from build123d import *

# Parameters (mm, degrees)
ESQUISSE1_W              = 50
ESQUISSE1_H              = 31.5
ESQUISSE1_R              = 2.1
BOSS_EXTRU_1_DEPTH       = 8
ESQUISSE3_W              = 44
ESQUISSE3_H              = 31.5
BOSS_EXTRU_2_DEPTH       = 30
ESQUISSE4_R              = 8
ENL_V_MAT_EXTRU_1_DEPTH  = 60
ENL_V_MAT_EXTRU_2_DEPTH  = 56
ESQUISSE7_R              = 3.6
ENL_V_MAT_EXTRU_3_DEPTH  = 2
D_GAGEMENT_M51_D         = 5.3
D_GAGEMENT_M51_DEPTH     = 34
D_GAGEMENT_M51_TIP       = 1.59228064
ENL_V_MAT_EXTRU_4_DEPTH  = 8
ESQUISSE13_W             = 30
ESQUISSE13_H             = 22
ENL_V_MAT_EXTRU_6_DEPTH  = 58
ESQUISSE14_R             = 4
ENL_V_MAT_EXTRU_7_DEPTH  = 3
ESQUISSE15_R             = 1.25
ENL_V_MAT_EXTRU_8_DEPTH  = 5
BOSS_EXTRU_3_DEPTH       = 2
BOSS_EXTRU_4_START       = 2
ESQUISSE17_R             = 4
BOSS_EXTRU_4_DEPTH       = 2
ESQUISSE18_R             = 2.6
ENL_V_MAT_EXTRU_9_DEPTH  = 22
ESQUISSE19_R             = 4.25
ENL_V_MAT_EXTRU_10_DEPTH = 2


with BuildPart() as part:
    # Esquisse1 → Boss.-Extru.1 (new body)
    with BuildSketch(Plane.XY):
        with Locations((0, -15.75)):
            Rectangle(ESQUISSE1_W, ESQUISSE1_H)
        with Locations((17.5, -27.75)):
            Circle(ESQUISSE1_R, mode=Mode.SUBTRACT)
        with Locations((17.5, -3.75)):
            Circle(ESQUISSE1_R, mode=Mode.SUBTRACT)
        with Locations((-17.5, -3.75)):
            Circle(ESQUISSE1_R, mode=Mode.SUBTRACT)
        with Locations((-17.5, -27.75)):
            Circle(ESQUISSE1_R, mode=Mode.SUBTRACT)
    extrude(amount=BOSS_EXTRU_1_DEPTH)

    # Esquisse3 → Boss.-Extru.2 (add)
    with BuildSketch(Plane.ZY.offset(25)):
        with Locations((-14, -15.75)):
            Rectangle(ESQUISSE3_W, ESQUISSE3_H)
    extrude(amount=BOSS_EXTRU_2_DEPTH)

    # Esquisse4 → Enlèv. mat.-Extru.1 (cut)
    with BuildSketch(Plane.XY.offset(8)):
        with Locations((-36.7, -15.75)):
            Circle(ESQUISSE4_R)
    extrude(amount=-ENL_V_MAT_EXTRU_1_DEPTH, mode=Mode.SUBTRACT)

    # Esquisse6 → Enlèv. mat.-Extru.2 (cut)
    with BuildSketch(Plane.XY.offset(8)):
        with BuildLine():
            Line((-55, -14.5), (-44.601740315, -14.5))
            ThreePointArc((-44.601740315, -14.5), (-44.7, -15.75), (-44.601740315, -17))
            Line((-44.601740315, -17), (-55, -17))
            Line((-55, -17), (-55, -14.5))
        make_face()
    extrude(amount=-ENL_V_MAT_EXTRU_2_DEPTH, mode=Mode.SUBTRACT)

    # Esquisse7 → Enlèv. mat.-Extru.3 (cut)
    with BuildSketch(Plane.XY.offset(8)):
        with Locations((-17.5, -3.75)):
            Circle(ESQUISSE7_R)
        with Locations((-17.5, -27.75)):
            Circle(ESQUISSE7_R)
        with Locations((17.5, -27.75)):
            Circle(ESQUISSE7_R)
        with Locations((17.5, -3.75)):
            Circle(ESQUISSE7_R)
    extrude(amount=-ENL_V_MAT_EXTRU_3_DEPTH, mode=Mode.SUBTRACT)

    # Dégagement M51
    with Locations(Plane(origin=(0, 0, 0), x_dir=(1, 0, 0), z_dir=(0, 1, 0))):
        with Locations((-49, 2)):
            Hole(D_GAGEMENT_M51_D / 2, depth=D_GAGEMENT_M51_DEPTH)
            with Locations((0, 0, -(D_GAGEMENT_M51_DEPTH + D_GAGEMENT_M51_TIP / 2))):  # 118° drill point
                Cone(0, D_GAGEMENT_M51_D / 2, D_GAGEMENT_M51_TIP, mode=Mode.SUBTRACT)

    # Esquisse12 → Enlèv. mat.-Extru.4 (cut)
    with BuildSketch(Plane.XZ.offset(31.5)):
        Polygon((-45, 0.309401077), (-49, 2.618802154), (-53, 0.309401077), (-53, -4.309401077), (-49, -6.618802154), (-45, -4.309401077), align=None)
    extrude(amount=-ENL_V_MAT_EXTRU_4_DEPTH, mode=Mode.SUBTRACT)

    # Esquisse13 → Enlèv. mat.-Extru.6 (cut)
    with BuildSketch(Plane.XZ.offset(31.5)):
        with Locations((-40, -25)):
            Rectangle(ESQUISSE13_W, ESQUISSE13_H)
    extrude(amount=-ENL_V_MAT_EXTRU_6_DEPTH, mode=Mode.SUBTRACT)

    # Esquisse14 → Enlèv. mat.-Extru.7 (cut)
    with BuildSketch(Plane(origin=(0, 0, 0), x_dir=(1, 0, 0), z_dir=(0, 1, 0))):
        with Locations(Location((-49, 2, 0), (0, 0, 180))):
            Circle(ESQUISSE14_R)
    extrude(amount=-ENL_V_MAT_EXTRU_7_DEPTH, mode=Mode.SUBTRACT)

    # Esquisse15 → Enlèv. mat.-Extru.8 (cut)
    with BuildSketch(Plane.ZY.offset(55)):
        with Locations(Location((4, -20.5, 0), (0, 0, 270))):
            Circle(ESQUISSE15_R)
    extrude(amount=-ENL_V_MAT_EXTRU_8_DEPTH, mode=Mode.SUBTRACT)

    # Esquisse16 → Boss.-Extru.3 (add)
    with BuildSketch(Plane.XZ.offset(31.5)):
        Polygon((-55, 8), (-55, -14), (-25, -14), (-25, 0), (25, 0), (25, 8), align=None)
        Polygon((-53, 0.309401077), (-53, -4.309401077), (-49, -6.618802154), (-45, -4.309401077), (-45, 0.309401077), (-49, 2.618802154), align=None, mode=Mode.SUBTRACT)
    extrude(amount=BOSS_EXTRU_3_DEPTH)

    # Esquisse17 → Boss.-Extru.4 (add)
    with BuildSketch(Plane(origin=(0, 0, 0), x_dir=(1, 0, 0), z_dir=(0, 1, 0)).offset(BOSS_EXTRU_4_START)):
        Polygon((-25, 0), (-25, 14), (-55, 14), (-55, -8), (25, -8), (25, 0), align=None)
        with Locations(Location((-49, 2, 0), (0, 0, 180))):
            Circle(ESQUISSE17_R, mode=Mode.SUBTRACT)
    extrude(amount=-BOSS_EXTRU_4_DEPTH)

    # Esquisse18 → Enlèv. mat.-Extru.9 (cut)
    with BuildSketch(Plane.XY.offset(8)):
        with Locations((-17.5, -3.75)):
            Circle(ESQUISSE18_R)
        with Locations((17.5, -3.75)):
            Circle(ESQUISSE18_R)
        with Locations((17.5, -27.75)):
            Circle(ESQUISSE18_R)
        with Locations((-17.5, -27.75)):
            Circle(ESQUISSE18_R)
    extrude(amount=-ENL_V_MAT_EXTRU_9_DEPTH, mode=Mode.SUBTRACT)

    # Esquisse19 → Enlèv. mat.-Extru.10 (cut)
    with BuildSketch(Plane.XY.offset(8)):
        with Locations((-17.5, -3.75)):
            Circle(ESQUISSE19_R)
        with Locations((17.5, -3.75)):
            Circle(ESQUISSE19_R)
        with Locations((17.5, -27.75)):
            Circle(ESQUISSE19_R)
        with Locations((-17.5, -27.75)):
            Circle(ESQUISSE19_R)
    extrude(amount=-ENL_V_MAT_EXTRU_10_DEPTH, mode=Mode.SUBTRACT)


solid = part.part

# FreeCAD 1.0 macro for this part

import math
import FreeCAD as App
import Part
import Sketcher
from FreeCAD import Vector
Q = App.Units.Quantity

doc = App.newDocument("Part")
body = doc.addObject("PartDesign::Body", "Body")

# Sketch on XY plane
sketch1 = doc.addObject("Sketcher::SketchObject", "Sketch")
body.addObject(sketch1)
sketch1.AttachmentSupport = (doc.XY_Plane, [""])
sketch1.MapMode = "FlatFace"
sketch1.addGeometry(Part.LineSegment(Vector(-25, 0, 0), Vector(-25, -31.5, 0)), False)
sketch1.addGeometry(Part.LineSegment(Vector(-25, -31.5, 0), Vector(25, -31.5, 0)), False)
sketch1.addGeometry(Part.LineSegment(Vector(25, -31.5, 0), Vector(25, 0, 0)), False)
sketch1.addGeometry(Part.LineSegment(Vector(25, 0, 0), Vector(-25, 0, 0)), False)
sketch1.addGeometry(Part.Circle(Vector(-17.5, -27.8, 0), Vector(0, 0, 1), 2.1), False)
sketch1.addGeometry(Part.Circle(Vector(17.5, -27.8, 0), Vector(0, 0, 1), 2.1), False)
sketch1.addGeometry(Part.Circle(Vector(-17.5, -3.8, 0), Vector(0, 0, 1), 2.1), False)
sketch1.addGeometry(Part.Circle(Vector(17.5, -3.8, 0), Vector(0, 0, 1), 2.1), False)
sketch1.addConstraint(Sketcher.Constraint("Coincident", 0, 2, 1, 1))
sketch1.addConstraint(Sketcher.Constraint("Coincident", 1, 2, 2, 1))
sketch1.addConstraint(Sketcher.Constraint("Coincident", 2, 2, 3, 1))
sketch1.addConstraint(Sketcher.Constraint("Coincident", 3, 2, 0, 1))
sketch1.addConstraint(Sketcher.Constraint("Vertical", 0))
sketch1.addConstraint(Sketcher.Constraint("Horizontal", 1))
sketch1.addConstraint(Sketcher.Constraint("Vertical", 2))
sketch1.addConstraint(Sketcher.Constraint("Horizontal", 3))
sketch1.addConstraint(Sketcher.Constraint("Equal", 4, 5))
sketch1.addConstraint(Sketcher.Constraint("Equal", 5, 6))
sketch1.addConstraint(Sketcher.Constraint("Equal", 6, 7))
sketch1.addConstraint(Sketcher.Constraint("Symmetric", 2, 2, 3, 2, -1, 1))
sketch1.addConstraint(Sketcher.Constraint("Symmetric", 4, 3, 5, 3, -2))
sketch1.addConstraint(Sketcher.Constraint("Symmetric", 6, 3, 7, 3, -2))
sketch1.addConstraint(Sketcher.Constraint("Vertical", 4, 3, 6, 3))
sketch1.addConstraint(Sketcher.Constraint("Diameter", 4, Q("4.2 mm")))
sketch1.addConstraint(Sketcher.Constraint("DistanceX", 1, 1, 1, 2, Q("50 mm")))
sketch1.addConstraint(Sketcher.Constraint("DistanceY", 0, 2, 0, 1, Q("31.5 mm")))
sketch1.addConstraint(Sketcher.Constraint("DistanceX", 4, 3, 5, 3, Q("35 mm")))
sketch1.addConstraint(Sketcher.Constraint("DistanceY", 4, 3, 6, 3, Q("24 mm")))
sketch1.addConstraint(Sketcher.Constraint("DistanceY", 4, 3, -1, 1, Q("27.75 mm")))
pad1 = doc.addObject("PartDesign::Pad", "Pad")
body.addObject(pad1)
pad1.Profile = sketch1
pad1.Length = 8

# Sketch on YZ plane
sketch2 = doc.addObject("Sketcher::SketchObject", "Sketch001")
body.addObject(sketch2)
sketch2.AttachmentSupport = (doc.YZ_Plane, [""])
sketch2.MapMode = "FlatFace"
sketch2.AttachmentOffset = App.Placement(Vector(0, 0, -25), App.Rotation())
sketch2.addGeometry(Part.LineSegment(Vector(0, -36, 0), Vector(-32, -36, 0)), False)
sketch2.addGeometry(Part.LineSegment(Vector(-32, -36, 0), Vector(-32, 8, 0)), False)
sketch2.addGeometry(Part.LineSegment(Vector(-32, 8, 0), Vector(0, 8, 0)), False)
sketch2.addGeometry(Part.LineSegment(Vector(0, 8, 0), Vector(0, -36, 0)), False)
sketch2.addConstraint(Sketcher.Constraint("Coincident", 0, 2, 1, 1))
sketch2.addConstraint(Sketcher.Constraint("Coincident", 1, 2, 2, 1))
sketch2.addConstraint(Sketcher.Constraint("Coincident", 2, 2, 3, 1))
sketch2.addConstraint(Sketcher.Constraint("Coincident", 3, 2, 0, 1))
sketch2.addConstraint(Sketcher.Constraint("Horizontal", 0))
sketch2.addConstraint(Sketcher.Constraint("Vertical", 1))
sketch2.addConstraint(Sketcher.Constraint("Horizontal", 2))
sketch2.addConstraint(Sketcher.Constraint("Vertical", 3))
sketch2.addConstraint(Sketcher.Constraint("PointOnObject", 2, 2, -2))
sketch2.addConstraint(Sketcher.Constraint("DistanceY", 1, 1, 1, 2, Q("44 mm")))
sketch2.addConstraint(Sketcher.Constraint("DistanceX", 0, 2, 0, 1, Q("31.5 mm")))
sketch2.addConstraint(Sketcher.Constraint("DistanceY", 0, 2, -1, 1, Q("36 mm")))
pad2 = doc.addObject("PartDesign::Pad", "Pad001")
body.addObject(pad2)
pad2.Profile = sketch2
pad2.Length = 30
pad2.Reversed = True

# Sketch on XY plane
sketch3 = doc.addObject("Sketcher::SketchObject", "Sketch002")
body.addObject(sketch3)
sketch3.AttachmentSupport = (doc.XY_Plane, [""])
sketch3.MapMode = "FlatFace"
sketch3.AttachmentOffset = App.Placement(Vector(0, 0, 8), App.Rotation())
sketch3.addGeometry(Part.Circle(Vector(-37, -16, 0), Vector(0, 0, 1), 8), False)
sketch3.addConstraint(Sketcher.Constraint("Diameter", 0, Q("16 mm")))
sketch3.addConstraint(Sketcher.Constraint("DistanceX", 0, 3, -1, 1, Q("36.7 mm")))
sketch3.addConstraint(Sketcher.Constraint("DistanceY", 0, 3, -1, 1, Q("15.75 mm")))
pocket1 = doc.addObject("PartDesign::Pocket", "Pocket")
body.addObject(pocket1)
pocket1.Profile = sketch3
pocket1.Length = 60

# Sketch on XY plane
sketch4 = doc.addObject("Sketcher::SketchObject", "Sketch003")
body.addObject(sketch4)
sketch4.AttachmentSupport = (doc.XY_Plane, [""])
sketch4.MapMode = "FlatFace"
sketch4.AttachmentOffset = App.Placement(Vector(0, 0, 8), App.Rotation())
sketch4.addGeometry(Part.LineSegment(Vector(-44.6, -14.5, 0), Vector(-55, -14.5, 0)), False)
sketch4.addGeometry(Part.LineSegment(Vector(-55, -14.5, 0), Vector(-55, -17, 0)), False)
sketch4.addGeometry(Part.LineSegment(Vector(-55, -17, 0), Vector(-44.6, -17, 0)), False)
sketch4.addGeometry(Part.ArcOfCircle(Part.Circle(Vector(-36.7, -15.8, 0), Vector(0, 0, 1), 8), math.radians(171.01), math.radians(188.99)), False)
sketch4.addConstraint(Sketcher.Constraint("Coincident", 0, 2, 1, 1))
sketch4.addConstraint(Sketcher.Constraint("Coincident", 1, 2, 2, 1))
sketch4.addConstraint(Sketcher.Constraint("Coincident", 2, 2, 3, 2))
sketch4.addConstraint(Sketcher.Constraint("Coincident", 3, 1, 0, 1))
sketch4.addConstraint(Sketcher.Constraint("Horizontal", 0))
sketch4.addConstraint(Sketcher.Constraint("Vertical", 1))
sketch4.addConstraint(Sketcher.Constraint("Horizontal", 2))
sketch4.addConstraint(Sketcher.Constraint("Vertical", 2, 2, 3, 1))
sketch4.addConstraint(Sketcher.Constraint("Radius", 3, Q("8 mm")))
sketch4.addConstraint(Sketcher.Constraint("DistanceY", 1, 2, 1, 1, Q("2.5 mm")))
sketch4.addConstraint(Sketcher.Constraint("DistanceX", 0, 2, -1, 1, Q("55 mm")))
sketch4.addConstraint(Sketcher.Constraint("DistanceY", 1, 2, -1, 1, Q("17 mm")))
sketch4.addConstraint(Sketcher.Constraint("DistanceX", 3, 3, -1, 1, Q("36.7 mm")))
pocket2 = doc.addObject("PartDesign::Pocket", "Pocket001")
body.addObject(pocket2)
pocket2.Profile = sketch4
pocket2.Length = 56

# Sketch on XY plane
sketch5 = doc.addObject("Sketcher::SketchObject", "Sketch004")
body.addObject(sketch5)
sketch5.AttachmentSupport = (doc.XY_Plane, [""])
sketch5.MapMode = "FlatFace"
sketch5.AttachmentOffset = App.Placement(Vector(0, 0, 8), App.Rotation())
sketch5.addGeometry(Part.Circle(Vector(-17.5, -3.8, 0), Vector(0, 0, 1), 3.6), False)
sketch5.addGeometry(Part.Circle(Vector(-17.5, -27.8, 0), Vector(0, 0, 1), 3.6), False)
sketch5.addGeometry(Part.Circle(Vector(17.5, -27.8, 0), Vector(0, 0, 1), 3.6), False)
sketch5.addGeometry(Part.Circle(Vector(17.5, -3.8, 0), Vector(0, 0, 1), 3.6), False)
sketch5.addConstraint(Sketcher.Constraint("Equal", 0, 1))
sketch5.addConstraint(Sketcher.Constraint("Equal", 1, 2))
sketch5.addConstraint(Sketcher.Constraint("Equal", 2, 3))
sketch5.addConstraint(Sketcher.Constraint("Symmetric", 1, 3, 2, 3, -2))
sketch5.addConstraint(Sketcher.Constraint("Symmetric", 0, 3, 3, 3, -2))
sketch5.addConstraint(Sketcher.Constraint("Vertical", 0, 3, 1, 3))
sketch5.addConstraint(Sketcher.Constraint("Diameter", 0, Q("7.2 mm")))
sketch5.addConstraint(Sketcher.Constraint("DistanceY", 1, 3, 0, 3, Q("24 mm")))
sketch5.addConstraint(Sketcher.Constraint("DistanceX", 1, 3, 2, 3, Q("35 mm")))
sketch5.addConstraint(Sketcher.Constraint("DistanceY", 0, 3, -1, 1, Q("3.75 mm")))
pocket3 = doc.addObject("PartDesign::Pocket", "Pocket002")
body.addObject(pocket3)
pocket3.Profile = sketch5
pocket3.Length = 2

# Sketch on XZ plane
sketch6 = doc.addObject("Sketcher::SketchObject", "Sketch005")
body.addObject(sketch6)
sketch6.AttachmentSupport = (doc.XZ_Plane, [""])
sketch6.MapMode = "FlatFace"
sketch6.addGeometry(Part.Circle(Vector(-49, -2, 0), Vector(0, 0, 1), 2.6), False)
sketch6.addConstraint(Sketcher.Constraint("Diameter", 0, Q("5.3 mm")))
sketch6.addConstraint(Sketcher.Constraint("DistanceX", 0, 3, -1, 1, Q("49 mm")))
sketch6.addConstraint(Sketcher.Constraint("DistanceY", 0, 3, -1, 1, Q("2 mm")))
doc.recompute()
hole = doc.addObject("PartDesign::Hole", "Hole")
body.addObject(hole)
hole.Profile = sketch6
hole.ThreadType = "None"
hole.Diameter = 5.3
hole.DepthType = "Dimension"
hole.Depth = 34
hole.DrillPoint = "Angled"
hole.DrillPointAngle = 118
hole.Reversed = True

# Sketch on XZ plane
sketch7 = doc.addObject("Sketcher::SketchObject", "Sketch006")
body.addObject(sketch7)
sketch7.AttachmentSupport = (doc.XZ_Plane, [""])
sketch7.MapMode = "FlatFace"
sketch7.AttachmentOffset = App.Placement(Vector(0, 0, 31.5), App.Rotation())
sketch7.addGeometry(Part.LineSegment(Vector(-45, 0.3, 0), Vector(-49, 2.6, 0)), False)
sketch7.addGeometry(Part.LineSegment(Vector(-49, 2.6, 0), Vector(-53, 0.3, 0)), False)
sketch7.addGeometry(Part.LineSegment(Vector(-53, 0.3, 0), Vector(-53, -4.3, 0)), False)
sketch7.addGeometry(Part.LineSegment(Vector(-53, -4.3, 0), Vector(-49, -6.6, 0)), False)
sketch7.addGeometry(Part.LineSegment(Vector(-49, -6.6, 0), Vector(-45, -4.3, 0)), False)
sketch7.addGeometry(Part.LineSegment(Vector(-45, -4.3, 0), Vector(-45, 0.3, 0)), False)
sketch7.addConstraint(Sketcher.Constraint("Coincident", 0, 2, 1, 1))
sketch7.addConstraint(Sketcher.Constraint("Coincident", 1, 2, 2, 1))
sketch7.addConstraint(Sketcher.Constraint("Coincident", 2, 2, 3, 1))
sketch7.addConstraint(Sketcher.Constraint("Coincident", 3, 2, 4, 1))
sketch7.addConstraint(Sketcher.Constraint("Coincident", 4, 2, 5, 1))
sketch7.addConstraint(Sketcher.Constraint("Coincident", 5, 2, 0, 1))
sketch7.addConstraint(Sketcher.Constraint("Vertical", 2))
sketch7.addConstraint(Sketcher.Constraint("Vertical", 5))
sketch7.addConstraint(Sketcher.Constraint("Parallel", 0, 3))
sketch7.addConstraint(Sketcher.Constraint("Parallel", 1, 4))
sketch7.addConstraint(Sketcher.Constraint("Horizontal", 2, 2, 4, 2))
sketch7.addConstraint(Sketcher.Constraint("Horizontal", 1, 2, 5, 2))
sketch7.addConstraint(Sketcher.Constraint("Vertical", 0, 2, 3, 2))
sketch7.addConstraint(Sketcher.Constraint("Angle", 0, Q("150 deg")))
sketch7.addConstraint(Sketcher.Constraint("DistanceX", 0, 2, -1, 1, Q("49 mm")))
sketch7.addConstraint(Sketcher.Constraint("DistanceX", 1, 2, -1, 1, Q("53 mm")))
sketch7.addConstraint(Sketcher.Constraint("DistanceY", -1, 1, 1, 2, Q("0.309401 mm")))
sketch7.addConstraint(Sketcher.Constraint("DistanceY", 2, 2, -1, 1, Q("4.309401 mm")))
pocket4 = doc.addObject("PartDesign::Pocket", "Pocket003")
body.addObject(pocket4)
pocket4.Profile = sketch7
pocket4.Length = 8

# Sketch on XZ plane
sketch8 = doc.addObject("Sketcher::SketchObject", "Sketch007")
body.addObject(sketch8)
sketch8.AttachmentSupport = (doc.XZ_Plane, [""])
sketch8.MapMode = "FlatFace"
sketch8.AttachmentOffset = App.Placement(Vector(0, 0, 31.5), App.Rotation())
sketch8.addGeometry(Part.LineSegment(Vector(-55, -14, 0), Vector(-55, -36, 0)), False)
sketch8.addGeometry(Part.LineSegment(Vector(-55, -36, 0), Vector(-25, -36, 0)), False)
sketch8.addGeometry(Part.LineSegment(Vector(-25, -36, 0), Vector(-25, -14, 0)), False)
sketch8.addGeometry(Part.LineSegment(Vector(-25, -14, 0), Vector(-55, -14, 0)), False)
sketch8.addConstraint(Sketcher.Constraint("Coincident", 0, 2, 1, 1))
sketch8.addConstraint(Sketcher.Constraint("Coincident", 1, 2, 2, 1))
sketch8.addConstraint(Sketcher.Constraint("Coincident", 2, 2, 3, 1))
sketch8.addConstraint(Sketcher.Constraint("Coincident", 3, 2, 0, 1))
sketch8.addConstraint(Sketcher.Constraint("Vertical", 0))
sketch8.addConstraint(Sketcher.Constraint("Horizontal", 1))
sketch8.addConstraint(Sketcher.Constraint("Vertical", 2))
sketch8.addConstraint(Sketcher.Constraint("Horizontal", 3))
sketch8.addConstraint(Sketcher.Constraint("DistanceX", 1, 1, 1, 2, Q("30 mm")))
sketch8.addConstraint(Sketcher.Constraint("DistanceY", 0, 2, 0, 1, Q("22 mm")))
sketch8.addConstraint(Sketcher.Constraint("DistanceX", 0, 2, -1, 1, Q("55 mm")))
sketch8.addConstraint(Sketcher.Constraint("DistanceY", 0, 2, -1, 1, Q("36 mm")))
pocket5 = doc.addObject("PartDesign::Pocket", "Pocket004")
body.addObject(pocket5)
pocket5.Profile = sketch8
pocket5.Length = 58

# Sketch on XZ plane
sketch9 = doc.addObject("Sketcher::SketchObject", "Sketch008")
body.addObject(sketch9)
sketch9.AttachmentSupport = (doc.XZ_Plane, [""])
sketch9.MapMode = "FlatFace"
sketch9.addGeometry(Part.Circle(Vector(-49, -2, 0), Vector(0, 0, 1), 4), False)
sketch9.addConstraint(Sketcher.Constraint("Diameter", 0, Q("8 mm")))
sketch9.addConstraint(Sketcher.Constraint("DistanceX", 0, 3, -1, 1, Q("49 mm")))
sketch9.addConstraint(Sketcher.Constraint("DistanceY", 0, 3, -1, 1, Q("2 mm")))
pocket6 = doc.addObject("PartDesign::Pocket", "Pocket005")
body.addObject(pocket6)
pocket6.Profile = sketch9
pocket6.Length = 3
pocket6.Reversed = True

# Sketch on YZ plane
sketch10 = doc.addObject("Sketcher::SketchObject", "Sketch009")
body.addObject(sketch10)
sketch10.AttachmentSupport = (doc.YZ_Plane, [""])
sketch10.MapMode = "FlatFace"
sketch10.AttachmentOffset = App.Placement(Vector(0, 0, -55), App.Rotation())
sketch10.addGeometry(Part.Circle(Vector(-20.5, 4, 0), Vector(0, 0, 1), 1.2), False)
sketch10.addConstraint(Sketcher.Constraint("Diameter", 0, Q("2.5 mm")))
sketch10.addConstraint(Sketcher.Constraint("DistanceY", -1, 1, 0, 3, Q("4 mm")))
sketch10.addConstraint(Sketcher.Constraint("DistanceX", 0, 3, -1, 1, Q("20.5 mm")))
pocket7 = doc.addObject("PartDesign::Pocket", "Pocket006")
body.addObject(pocket7)
pocket7.Profile = sketch10
pocket7.Length = 5
pocket7.Reversed = True

# Sketch on XZ plane
sketch11 = doc.addObject("Sketcher::SketchObject", "Sketch010")
body.addObject(sketch11)
sketch11.AttachmentSupport = (doc.XZ_Plane, [""])
sketch11.MapMode = "FlatFace"
sketch11.AttachmentOffset = App.Placement(Vector(0, 0, 31.5), App.Rotation())
sketch11.addGeometry(Part.LineSegment(Vector(-55, 8, 0), Vector(-55, -14, 0)), False)
sketch11.addGeometry(Part.LineSegment(Vector(-55, -14, 0), Vector(-25, -14, 0)), False)
sketch11.addGeometry(Part.LineSegment(Vector(-25, -14, 0), Vector(-25, 0, 0)), False)
sketch11.addGeometry(Part.LineSegment(Vector(-25, 0, 0), Vector(25, 0, 0)), False)
sketch11.addGeometry(Part.LineSegment(Vector(25, 0, 0), Vector(25, 8, 0)), False)
sketch11.addGeometry(Part.LineSegment(Vector(25, 8, 0), Vector(-55, 8, 0)), False)
sketch11.addGeometry(Part.LineSegment(Vector(-53, -4.3, 0), Vector(-53, 0.3, 0)), False)
sketch11.addGeometry(Part.LineSegment(Vector(-53, 0.3, 0), Vector(-49, 2.6, 0)), False)
sketch11.addGeometry(Part.LineSegment(Vector(-49, 2.6, 0), Vector(-45, 0.3, 0)), False)
sketch11.addGeometry(Part.LineSegment(Vector(-45, 0.3, 0), Vector(-45, -4.3, 0)), False)
sketch11.addGeometry(Part.LineSegment(Vector(-45, -4.3, 0), Vector(-49, -6.6, 0)), False)
sketch11.addGeometry(Part.LineSegment(Vector(-49, -6.6, 0), Vector(-53, -4.3, 0)), False)
sketch11.addConstraint(Sketcher.Constraint("Coincident", 0, 2, 1, 1))
sketch11.addConstraint(Sketcher.Constraint("Coincident", 1, 2, 2, 1))
sketch11.addConstraint(Sketcher.Constraint("Coincident", 2, 2, 3, 1))
sketch11.addConstraint(Sketcher.Constraint("Coincident", 3, 2, 4, 1))
sketch11.addConstraint(Sketcher.Constraint("Coincident", 4, 2, 5, 1))
sketch11.addConstraint(Sketcher.Constraint("Coincident", 5, 2, 0, 1))
sketch11.addConstraint(Sketcher.Constraint("Coincident", 6, 2, 7, 1))
sketch11.addConstraint(Sketcher.Constraint("Coincident", 7, 2, 8, 1))
sketch11.addConstraint(Sketcher.Constraint("Coincident", 8, 2, 9, 1))
sketch11.addConstraint(Sketcher.Constraint("Coincident", 9, 2, 10, 1))
sketch11.addConstraint(Sketcher.Constraint("Coincident", 10, 2, 11, 1))
sketch11.addConstraint(Sketcher.Constraint("Coincident", 11, 2, 6, 1))
sketch11.addConstraint(Sketcher.Constraint("Vertical", 0))
sketch11.addConstraint(Sketcher.Constraint("Horizontal", 1))
sketch11.addConstraint(Sketcher.Constraint("Vertical", 2))
sketch11.addConstraint(Sketcher.Constraint("Horizontal", 3))
sketch11.addConstraint(Sketcher.Constraint("Vertical", 4))
sketch11.addConstraint(Sketcher.Constraint("Horizontal", 5))
sketch11.addConstraint(Sketcher.Constraint("Vertical", 6))
sketch11.addConstraint(Sketcher.Constraint("Vertical", 9))
sketch11.addConstraint(Sketcher.Constraint("Symmetric", 2, 2, 3, 2, -1, 1))
sketch11.addConstraint(Sketcher.Constraint("Parallel", 7, 10))
sketch11.addConstraint(Sketcher.Constraint("Parallel", 8, 11))
sketch11.addConstraint(Sketcher.Constraint("Horizontal", 6, 2, 8, 2))
sketch11.addConstraint(Sketcher.Constraint("Horizontal", 9, 2, 11, 2))
sketch11.addConstraint(Sketcher.Constraint("Vertical", 7, 2, 10, 2))
sketch11.addConstraint(Sketcher.Constraint("DistanceX", 1, 1, 1, 2, Q("30 mm")))
sketch11.addConstraint(Sketcher.Constraint("DistanceX", 3, 1, 3, 2, Q("50 mm")))
sketch11.addConstraint(Sketcher.Constraint("DistanceY", 0, 2, 0, 1, Q("22 mm")))
sketch11.addConstraint(Sketcher.Constraint("DistanceY", 2, 1, 2, 2, Q("14 mm")))
sketch11.addConstraint(Sketcher.Constraint("Angle", 7, Q("30 deg")))
sketch11.addConstraint(Sketcher.Constraint("DistanceX", 6, 2, -1, 1, Q("53 mm")))
sketch11.addConstraint(Sketcher.Constraint("DistanceX", 7, 2, -1, 1, Q("49 mm")))
sketch11.addConstraint(Sketcher.Constraint("DistanceY", -1, 1, 6, 2, Q("0.309401 mm")))
sketch11.addConstraint(Sketcher.Constraint("DistanceY", 9, 2, -1, 1, Q("4.309401 mm")))
pad3 = doc.addObject("PartDesign::Pad", "Pad002")
body.addObject(pad3)
pad3.Profile = sketch11
pad3.Length = 2

# Sketch on XZ plane
sketch12 = doc.addObject("Sketcher::SketchObject", "Sketch011")
body.addObject(sketch12)
sketch12.AttachmentSupport = (doc.XZ_Plane, [""])
sketch12.MapMode = "FlatFace"
sketch12.AttachmentOffset = App.Placement(Vector(0, 0, -2), App.Rotation())
sketch12.addGeometry(Part.LineSegment(Vector(-25, 0, 0), Vector(-25, -14, 0)), False)
sketch12.addGeometry(Part.LineSegment(Vector(-25, -14, 0), Vector(-55, -14, 0)), False)
sketch12.addGeometry(Part.LineSegment(Vector(-55, -14, 0), Vector(-55, 8, 0)), False)
sketch12.addGeometry(Part.LineSegment(Vector(-55, 8, 0), Vector(25, 8, 0)), False)
sketch12.addGeometry(Part.LineSegment(Vector(25, 8, 0), Vector(25, 0, 0)), False)
sketch12.addGeometry(Part.LineSegment(Vector(25, 0, 0), Vector(-25, 0, 0)), False)
sketch12.addGeometry(Part.Circle(Vector(-49, -2, 0), Vector(0, 0, 1), 4), False)
sketch12.addConstraint(Sketcher.Constraint("Coincident", 0, 2, 1, 1))
sketch12.addConstraint(Sketcher.Constraint("Coincident", 1, 2, 2, 1))
sketch12.addConstraint(Sketcher.Constraint("Coincident", 2, 2, 3, 1))
sketch12.addConstraint(Sketcher.Constraint("Coincident", 3, 2, 4, 1))
sketch12.addConstraint(Sketcher.Constraint("Coincident", 4, 2, 5, 1))
sketch12.addConstraint(Sketcher.Constraint("Coincident", 5, 2, 0, 1))
sketch12.addConstraint(Sketcher.Constraint("Vertical", 0))
sketch12.addConstraint(Sketcher.Constraint("Horizontal", 1))
sketch12.addConstraint(Sketcher.Constraint("Vertical", 2))
sketch12.addConstraint(Sketcher.Constraint("Horizontal", 3))
sketch12.addConstraint(Sketcher.Constraint("Vertical", 4))
sketch12.addConstraint(Sketcher.Constraint("Horizontal", 5))
sketch12.addConstraint(Sketcher.Constraint("Symmetric", 4, 2, 5, 2, -1, 1))
sketch12.addConstraint(Sketcher.Constraint("Diameter", 6, Q("8 mm")))
sketch12.addConstraint(Sketcher.Constraint("DistanceX", 1, 2, 1, 1, Q("30 mm")))
sketch12.addConstraint(Sketcher.Constraint("DistanceX", 3, 1, 3, 2, Q("80 mm")))
sketch12.addConstraint(Sketcher.Constraint("DistanceY", 0, 2, 0, 1, Q("14 mm")))
sketch12.addConstraint(Sketcher.Constraint("DistanceY", 2, 1, 2, 2, Q("22 mm")))
sketch12.addConstraint(Sketcher.Constraint("DistanceX", 6, 3, -1, 1, Q("49 mm")))
sketch12.addConstraint(Sketcher.Constraint("DistanceY", 6, 3, -1, 1, Q("2 mm")))
pad4 = doc.addObject("PartDesign::Pad", "Pad003")
body.addObject(pad4)
pad4.Profile = sketch12
pad4.Length = 2

# Sketch on XY plane
sketch13 = doc.addObject("Sketcher::SketchObject", "Sketch012")
body.addObject(sketch13)
sketch13.AttachmentSupport = (doc.XY_Plane, [""])
sketch13.MapMode = "FlatFace"
sketch13.AttachmentOffset = App.Placement(Vector(0, 0, 8), App.Rotation())
sketch13.addGeometry(Part.Circle(Vector(-17.5, -3.8, 0), Vector(0, 0, 1), 2.6), False)
sketch13.addGeometry(Part.Circle(Vector(17.5, -3.8, 0), Vector(0, 0, 1), 2.6), False)
sketch13.addGeometry(Part.Circle(Vector(17.5, -27.8, 0), Vector(0, 0, 1), 2.6), False)
sketch13.addGeometry(Part.Circle(Vector(-17.5, -27.8, 0), Vector(0, 0, 1), 2.6), False)
sketch13.addConstraint(Sketcher.Constraint("Equal", 0, 1))
sketch13.addConstraint(Sketcher.Constraint("Equal", 1, 2))
sketch13.addConstraint(Sketcher.Constraint("Equal", 2, 3))
sketch13.addConstraint(Sketcher.Constraint("Symmetric", 0, 3, 1, 3, -2))
sketch13.addConstraint(Sketcher.Constraint("Symmetric", 2, 3, 3, 3, -2))
sketch13.addConstraint(Sketcher.Constraint("Vertical", 1, 3, 2, 3))
sketch13.addConstraint(Sketcher.Constraint("Diameter", 0, Q("5.2 mm")))
sketch13.addConstraint(Sketcher.Constraint("DistanceX", 0, 3, 1, 3, Q("35 mm")))
sketch13.addConstraint(Sketcher.Constraint("DistanceY", 2, 3, 1, 3, Q("24 mm")))
sketch13.addConstraint(Sketcher.Constraint("DistanceY", 0, 3, -1, 1, Q("3.75 mm")))
pocket8 = doc.addObject("PartDesign::Pocket", "Pocket007")
body.addObject(pocket8)
pocket8.Profile = sketch13
pocket8.Length = 22

# Sketch on XY plane
sketch14 = doc.addObject("Sketcher::SketchObject", "Sketch013")
body.addObject(sketch14)
sketch14.AttachmentSupport = (doc.XY_Plane, [""])
sketch14.MapMode = "FlatFace"
sketch14.AttachmentOffset = App.Placement(Vector(0, 0, 8), App.Rotation())
sketch14.addGeometry(Part.Circle(Vector(-17.5, -3.8, 0), Vector(0, 0, 1), 4.2), False)
sketch14.addGeometry(Part.Circle(Vector(17.5, -3.8, 0), Vector(0, 0, 1), 4.2), False)
sketch14.addGeometry(Part.Circle(Vector(17.5, -27.8, 0), Vector(0, 0, 1), 4.2), False)
sketch14.addGeometry(Part.Circle(Vector(-17.5, -27.8, 0), Vector(0, 0, 1), 4.2), False)
sketch14.addConstraint(Sketcher.Constraint("Equal", 0, 1))
sketch14.addConstraint(Sketcher.Constraint("Equal", 1, 2))
sketch14.addConstraint(Sketcher.Constraint("Equal", 2, 3))
sketch14.addConstraint(Sketcher.Constraint("Symmetric", 0, 3, 1, 3, -2))
sketch14.addConstraint(Sketcher.Constraint("Symmetric", 2, 3, 3, 3, -2))
sketch14.addConstraint(Sketcher.Constraint("Vertical", 1, 3, 2, 3))
sketch14.addConstraint(Sketcher.Constraint("Diameter", 0, Q("8.5 mm")))
sketch14.addConstraint(Sketcher.Constraint("DistanceX", 0, 3, 1, 3, Q("35 mm")))
sketch14.addConstraint(Sketcher.Constraint("DistanceY", 2, 3, 1, 3, Q("24 mm")))
sketch14.addConstraint(Sketcher.Constraint("DistanceY", 0, 3, -1, 1, Q("3.75 mm")))
pocket9 = doc.addObject("PartDesign::Pocket", "Pocket008")
body.addObject(pocket9)
pocket9.Profile = sketch14
pocket9.Length = 2

doc.recompute()
